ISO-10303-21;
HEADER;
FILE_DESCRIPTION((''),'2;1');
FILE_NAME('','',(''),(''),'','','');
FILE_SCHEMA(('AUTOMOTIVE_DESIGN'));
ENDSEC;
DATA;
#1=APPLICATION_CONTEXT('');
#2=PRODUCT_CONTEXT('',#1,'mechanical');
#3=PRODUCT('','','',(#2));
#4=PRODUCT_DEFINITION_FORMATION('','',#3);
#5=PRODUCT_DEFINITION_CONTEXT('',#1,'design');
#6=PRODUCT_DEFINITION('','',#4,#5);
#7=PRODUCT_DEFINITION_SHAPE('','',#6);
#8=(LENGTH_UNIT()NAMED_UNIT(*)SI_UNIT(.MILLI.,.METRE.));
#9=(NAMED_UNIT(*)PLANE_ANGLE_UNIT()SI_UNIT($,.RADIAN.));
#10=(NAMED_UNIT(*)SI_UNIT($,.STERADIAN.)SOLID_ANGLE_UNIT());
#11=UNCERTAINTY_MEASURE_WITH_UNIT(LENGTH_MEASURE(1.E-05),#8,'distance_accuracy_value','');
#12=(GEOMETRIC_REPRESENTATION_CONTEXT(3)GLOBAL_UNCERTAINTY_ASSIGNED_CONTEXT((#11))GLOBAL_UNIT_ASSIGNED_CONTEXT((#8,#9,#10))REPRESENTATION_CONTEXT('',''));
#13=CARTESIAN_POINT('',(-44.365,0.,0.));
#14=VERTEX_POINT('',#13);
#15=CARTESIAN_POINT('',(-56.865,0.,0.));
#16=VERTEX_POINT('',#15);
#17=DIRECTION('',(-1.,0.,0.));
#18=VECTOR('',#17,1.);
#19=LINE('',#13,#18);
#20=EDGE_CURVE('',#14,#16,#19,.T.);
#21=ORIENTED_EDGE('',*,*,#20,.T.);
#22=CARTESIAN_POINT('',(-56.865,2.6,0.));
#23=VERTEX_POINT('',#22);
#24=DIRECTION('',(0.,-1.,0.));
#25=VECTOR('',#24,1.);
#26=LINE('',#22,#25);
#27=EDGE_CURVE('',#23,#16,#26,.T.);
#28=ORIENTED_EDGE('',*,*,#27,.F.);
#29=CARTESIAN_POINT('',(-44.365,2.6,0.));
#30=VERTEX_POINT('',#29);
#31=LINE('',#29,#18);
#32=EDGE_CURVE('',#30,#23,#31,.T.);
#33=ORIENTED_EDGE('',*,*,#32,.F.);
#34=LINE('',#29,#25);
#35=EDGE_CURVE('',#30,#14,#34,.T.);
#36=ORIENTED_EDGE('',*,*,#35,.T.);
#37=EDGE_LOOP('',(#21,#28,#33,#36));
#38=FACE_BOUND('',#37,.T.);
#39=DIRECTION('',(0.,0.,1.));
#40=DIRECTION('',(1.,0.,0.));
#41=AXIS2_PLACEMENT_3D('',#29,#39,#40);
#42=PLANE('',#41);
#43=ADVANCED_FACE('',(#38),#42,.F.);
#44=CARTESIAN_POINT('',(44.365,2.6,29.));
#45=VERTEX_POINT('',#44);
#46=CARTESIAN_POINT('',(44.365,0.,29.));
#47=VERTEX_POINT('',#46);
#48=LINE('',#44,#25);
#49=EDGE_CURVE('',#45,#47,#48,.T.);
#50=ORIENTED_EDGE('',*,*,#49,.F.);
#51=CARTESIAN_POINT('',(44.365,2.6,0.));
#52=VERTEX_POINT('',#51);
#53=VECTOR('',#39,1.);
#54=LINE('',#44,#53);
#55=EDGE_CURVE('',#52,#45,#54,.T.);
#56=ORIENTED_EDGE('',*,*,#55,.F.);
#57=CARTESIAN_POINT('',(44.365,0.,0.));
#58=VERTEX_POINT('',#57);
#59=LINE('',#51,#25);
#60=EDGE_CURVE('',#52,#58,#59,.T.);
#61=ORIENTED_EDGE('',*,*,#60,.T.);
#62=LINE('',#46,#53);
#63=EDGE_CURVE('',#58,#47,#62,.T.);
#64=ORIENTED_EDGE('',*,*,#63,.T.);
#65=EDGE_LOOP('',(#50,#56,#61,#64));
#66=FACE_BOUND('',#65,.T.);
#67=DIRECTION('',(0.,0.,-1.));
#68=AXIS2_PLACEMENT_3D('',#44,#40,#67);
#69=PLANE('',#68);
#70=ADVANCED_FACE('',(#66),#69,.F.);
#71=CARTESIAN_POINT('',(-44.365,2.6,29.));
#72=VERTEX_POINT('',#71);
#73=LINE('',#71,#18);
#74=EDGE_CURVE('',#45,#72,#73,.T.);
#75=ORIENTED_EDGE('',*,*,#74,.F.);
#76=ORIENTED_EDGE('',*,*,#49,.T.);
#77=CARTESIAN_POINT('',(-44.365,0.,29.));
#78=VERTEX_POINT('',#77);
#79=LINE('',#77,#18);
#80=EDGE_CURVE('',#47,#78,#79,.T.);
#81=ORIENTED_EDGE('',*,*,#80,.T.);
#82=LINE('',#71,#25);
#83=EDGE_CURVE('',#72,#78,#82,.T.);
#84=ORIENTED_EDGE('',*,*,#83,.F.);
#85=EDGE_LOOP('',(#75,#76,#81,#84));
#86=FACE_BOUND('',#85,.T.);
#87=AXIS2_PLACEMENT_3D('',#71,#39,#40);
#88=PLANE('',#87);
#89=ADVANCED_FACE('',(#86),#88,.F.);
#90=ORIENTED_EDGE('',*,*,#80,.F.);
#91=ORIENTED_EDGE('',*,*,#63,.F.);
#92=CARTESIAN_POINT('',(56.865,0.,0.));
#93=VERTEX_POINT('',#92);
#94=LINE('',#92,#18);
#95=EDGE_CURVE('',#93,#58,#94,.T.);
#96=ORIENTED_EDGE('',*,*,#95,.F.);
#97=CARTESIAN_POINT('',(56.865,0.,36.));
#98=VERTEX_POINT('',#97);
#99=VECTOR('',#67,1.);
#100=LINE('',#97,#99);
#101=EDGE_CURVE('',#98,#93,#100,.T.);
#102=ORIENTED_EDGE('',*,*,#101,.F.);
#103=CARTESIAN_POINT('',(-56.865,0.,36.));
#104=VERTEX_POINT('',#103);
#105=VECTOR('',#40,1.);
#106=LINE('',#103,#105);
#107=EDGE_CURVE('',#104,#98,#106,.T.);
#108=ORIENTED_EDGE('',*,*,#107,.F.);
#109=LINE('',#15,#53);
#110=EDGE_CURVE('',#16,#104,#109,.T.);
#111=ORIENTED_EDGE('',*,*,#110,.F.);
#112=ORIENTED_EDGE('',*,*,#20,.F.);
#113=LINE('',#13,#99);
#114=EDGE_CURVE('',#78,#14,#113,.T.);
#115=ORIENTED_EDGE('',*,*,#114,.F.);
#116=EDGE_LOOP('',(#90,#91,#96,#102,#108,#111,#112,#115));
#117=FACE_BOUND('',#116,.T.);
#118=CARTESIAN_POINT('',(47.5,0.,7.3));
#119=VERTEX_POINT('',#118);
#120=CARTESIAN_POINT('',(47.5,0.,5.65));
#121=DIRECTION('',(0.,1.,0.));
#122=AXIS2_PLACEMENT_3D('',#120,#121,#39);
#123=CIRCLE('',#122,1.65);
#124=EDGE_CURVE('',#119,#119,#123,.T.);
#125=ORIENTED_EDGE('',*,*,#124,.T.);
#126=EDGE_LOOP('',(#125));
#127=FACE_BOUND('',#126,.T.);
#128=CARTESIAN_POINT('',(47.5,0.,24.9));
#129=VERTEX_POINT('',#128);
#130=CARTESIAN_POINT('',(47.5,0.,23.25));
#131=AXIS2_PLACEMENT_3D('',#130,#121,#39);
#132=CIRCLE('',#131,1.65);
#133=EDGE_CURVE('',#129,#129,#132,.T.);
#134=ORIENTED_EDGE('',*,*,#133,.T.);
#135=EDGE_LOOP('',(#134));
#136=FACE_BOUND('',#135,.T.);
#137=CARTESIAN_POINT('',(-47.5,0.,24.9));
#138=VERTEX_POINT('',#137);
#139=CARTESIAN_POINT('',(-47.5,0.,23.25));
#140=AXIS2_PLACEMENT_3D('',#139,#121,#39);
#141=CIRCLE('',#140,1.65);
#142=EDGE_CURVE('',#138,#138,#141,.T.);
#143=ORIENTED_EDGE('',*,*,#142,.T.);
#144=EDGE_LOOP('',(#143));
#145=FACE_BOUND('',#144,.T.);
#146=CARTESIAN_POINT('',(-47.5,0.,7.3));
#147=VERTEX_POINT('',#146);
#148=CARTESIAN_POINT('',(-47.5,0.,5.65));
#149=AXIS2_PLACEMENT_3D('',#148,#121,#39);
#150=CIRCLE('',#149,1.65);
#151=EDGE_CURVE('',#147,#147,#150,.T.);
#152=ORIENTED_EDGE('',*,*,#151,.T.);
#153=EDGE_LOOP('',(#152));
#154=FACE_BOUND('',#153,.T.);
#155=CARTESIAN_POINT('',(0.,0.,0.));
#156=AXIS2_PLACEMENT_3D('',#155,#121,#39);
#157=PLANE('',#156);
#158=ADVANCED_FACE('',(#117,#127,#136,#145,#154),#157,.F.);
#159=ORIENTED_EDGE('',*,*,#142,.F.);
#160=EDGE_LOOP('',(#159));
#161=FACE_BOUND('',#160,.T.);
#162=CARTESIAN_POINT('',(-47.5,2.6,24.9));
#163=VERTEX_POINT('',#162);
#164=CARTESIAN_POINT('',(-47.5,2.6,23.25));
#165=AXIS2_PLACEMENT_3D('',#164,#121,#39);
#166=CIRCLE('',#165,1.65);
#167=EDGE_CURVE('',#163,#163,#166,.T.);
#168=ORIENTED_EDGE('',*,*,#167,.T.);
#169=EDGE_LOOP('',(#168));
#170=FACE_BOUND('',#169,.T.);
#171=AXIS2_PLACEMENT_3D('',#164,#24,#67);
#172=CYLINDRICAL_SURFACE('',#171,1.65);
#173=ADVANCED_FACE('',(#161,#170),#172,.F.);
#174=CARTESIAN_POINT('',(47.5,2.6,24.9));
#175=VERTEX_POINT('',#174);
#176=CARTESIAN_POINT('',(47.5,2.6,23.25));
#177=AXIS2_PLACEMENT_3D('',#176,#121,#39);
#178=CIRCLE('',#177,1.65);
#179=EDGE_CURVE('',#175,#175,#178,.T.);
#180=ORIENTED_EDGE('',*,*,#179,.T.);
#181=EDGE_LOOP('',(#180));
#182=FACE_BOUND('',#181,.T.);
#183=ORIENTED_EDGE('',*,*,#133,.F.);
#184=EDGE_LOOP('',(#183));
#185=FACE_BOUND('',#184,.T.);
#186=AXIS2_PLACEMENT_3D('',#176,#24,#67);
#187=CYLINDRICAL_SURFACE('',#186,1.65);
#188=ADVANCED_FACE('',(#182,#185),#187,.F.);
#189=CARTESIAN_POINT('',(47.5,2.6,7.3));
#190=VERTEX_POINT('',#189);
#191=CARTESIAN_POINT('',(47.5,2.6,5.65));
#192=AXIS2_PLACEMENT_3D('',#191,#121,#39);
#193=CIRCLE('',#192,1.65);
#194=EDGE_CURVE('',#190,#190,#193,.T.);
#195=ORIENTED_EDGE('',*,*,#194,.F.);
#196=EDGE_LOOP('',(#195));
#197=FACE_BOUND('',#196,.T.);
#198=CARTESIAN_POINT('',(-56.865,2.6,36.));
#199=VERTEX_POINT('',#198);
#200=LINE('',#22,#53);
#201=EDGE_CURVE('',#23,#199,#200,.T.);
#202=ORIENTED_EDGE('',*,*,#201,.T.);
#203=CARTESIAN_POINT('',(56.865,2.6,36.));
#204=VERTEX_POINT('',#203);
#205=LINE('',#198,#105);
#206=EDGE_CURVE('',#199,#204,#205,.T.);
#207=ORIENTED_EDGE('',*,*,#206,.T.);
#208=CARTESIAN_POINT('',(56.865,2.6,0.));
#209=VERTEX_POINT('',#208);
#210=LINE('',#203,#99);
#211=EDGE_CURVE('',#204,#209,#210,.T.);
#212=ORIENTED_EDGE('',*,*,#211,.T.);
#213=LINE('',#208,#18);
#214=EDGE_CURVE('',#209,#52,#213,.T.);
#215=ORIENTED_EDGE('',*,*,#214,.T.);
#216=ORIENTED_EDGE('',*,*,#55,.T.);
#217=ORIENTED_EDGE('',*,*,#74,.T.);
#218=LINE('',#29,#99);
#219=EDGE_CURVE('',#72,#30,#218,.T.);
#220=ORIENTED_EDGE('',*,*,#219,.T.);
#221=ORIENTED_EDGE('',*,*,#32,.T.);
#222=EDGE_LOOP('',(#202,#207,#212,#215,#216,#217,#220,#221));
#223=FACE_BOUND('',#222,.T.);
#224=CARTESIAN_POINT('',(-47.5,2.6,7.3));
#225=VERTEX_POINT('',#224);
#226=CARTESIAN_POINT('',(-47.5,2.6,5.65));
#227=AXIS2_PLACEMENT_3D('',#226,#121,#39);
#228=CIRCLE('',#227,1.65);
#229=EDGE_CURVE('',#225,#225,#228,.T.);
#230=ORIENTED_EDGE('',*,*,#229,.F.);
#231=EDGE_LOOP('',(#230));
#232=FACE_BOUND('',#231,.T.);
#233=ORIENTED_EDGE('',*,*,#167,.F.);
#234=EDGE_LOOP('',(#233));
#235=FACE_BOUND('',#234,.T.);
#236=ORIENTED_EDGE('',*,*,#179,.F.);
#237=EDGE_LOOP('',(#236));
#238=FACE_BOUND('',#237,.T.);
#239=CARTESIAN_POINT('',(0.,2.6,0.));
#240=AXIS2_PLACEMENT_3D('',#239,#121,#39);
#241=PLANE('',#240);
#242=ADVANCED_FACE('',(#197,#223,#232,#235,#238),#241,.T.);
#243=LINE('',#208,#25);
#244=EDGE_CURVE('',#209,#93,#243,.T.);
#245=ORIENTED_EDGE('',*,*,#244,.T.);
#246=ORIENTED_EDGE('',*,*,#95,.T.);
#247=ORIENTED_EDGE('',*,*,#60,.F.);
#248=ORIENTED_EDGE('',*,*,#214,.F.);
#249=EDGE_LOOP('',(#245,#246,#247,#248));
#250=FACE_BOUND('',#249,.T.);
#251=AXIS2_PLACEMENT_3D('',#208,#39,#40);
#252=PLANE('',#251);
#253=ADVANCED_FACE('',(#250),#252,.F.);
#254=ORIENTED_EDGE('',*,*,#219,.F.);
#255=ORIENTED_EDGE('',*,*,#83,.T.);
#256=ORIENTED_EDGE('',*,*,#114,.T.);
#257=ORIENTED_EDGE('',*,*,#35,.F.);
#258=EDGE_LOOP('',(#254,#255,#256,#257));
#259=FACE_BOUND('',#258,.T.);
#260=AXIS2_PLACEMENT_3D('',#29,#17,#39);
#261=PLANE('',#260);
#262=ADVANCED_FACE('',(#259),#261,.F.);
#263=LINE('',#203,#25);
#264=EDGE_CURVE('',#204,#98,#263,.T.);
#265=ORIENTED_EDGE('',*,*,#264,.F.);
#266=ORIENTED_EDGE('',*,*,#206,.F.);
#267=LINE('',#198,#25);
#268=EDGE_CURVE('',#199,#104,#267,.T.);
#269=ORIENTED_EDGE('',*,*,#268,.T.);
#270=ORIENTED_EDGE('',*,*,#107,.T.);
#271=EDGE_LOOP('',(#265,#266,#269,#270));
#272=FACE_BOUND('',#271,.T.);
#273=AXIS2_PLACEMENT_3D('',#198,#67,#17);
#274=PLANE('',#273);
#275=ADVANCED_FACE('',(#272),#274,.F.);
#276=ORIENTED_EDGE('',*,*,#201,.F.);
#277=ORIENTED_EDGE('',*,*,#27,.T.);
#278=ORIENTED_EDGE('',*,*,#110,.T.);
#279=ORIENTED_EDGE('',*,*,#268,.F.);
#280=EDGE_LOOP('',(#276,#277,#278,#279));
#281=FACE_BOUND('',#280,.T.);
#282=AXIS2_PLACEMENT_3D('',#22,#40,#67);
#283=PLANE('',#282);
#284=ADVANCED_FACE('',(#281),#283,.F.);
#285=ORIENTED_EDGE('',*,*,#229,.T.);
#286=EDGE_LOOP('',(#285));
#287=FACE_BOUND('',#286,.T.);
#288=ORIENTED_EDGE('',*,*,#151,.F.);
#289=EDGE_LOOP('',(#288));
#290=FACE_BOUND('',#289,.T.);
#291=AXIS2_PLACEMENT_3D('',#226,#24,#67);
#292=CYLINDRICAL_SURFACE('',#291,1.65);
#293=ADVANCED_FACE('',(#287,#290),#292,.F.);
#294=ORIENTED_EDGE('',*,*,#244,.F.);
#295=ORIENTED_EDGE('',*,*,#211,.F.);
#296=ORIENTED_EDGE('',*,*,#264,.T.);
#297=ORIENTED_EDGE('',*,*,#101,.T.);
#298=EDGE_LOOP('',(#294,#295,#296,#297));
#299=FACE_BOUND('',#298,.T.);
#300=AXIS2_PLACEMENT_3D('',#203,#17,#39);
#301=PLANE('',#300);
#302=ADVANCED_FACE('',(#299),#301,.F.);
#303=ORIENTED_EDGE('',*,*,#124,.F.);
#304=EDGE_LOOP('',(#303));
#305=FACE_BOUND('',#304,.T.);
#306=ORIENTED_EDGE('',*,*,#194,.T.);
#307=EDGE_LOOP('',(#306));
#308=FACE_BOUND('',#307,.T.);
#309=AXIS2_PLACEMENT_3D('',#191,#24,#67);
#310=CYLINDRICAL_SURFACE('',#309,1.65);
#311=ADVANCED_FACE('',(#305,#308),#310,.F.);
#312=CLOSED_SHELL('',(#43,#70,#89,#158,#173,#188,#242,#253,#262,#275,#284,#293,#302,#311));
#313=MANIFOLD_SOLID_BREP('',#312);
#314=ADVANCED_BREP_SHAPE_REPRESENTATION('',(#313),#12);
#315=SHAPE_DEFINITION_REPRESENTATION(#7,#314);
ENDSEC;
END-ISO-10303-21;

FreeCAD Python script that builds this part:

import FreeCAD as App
import Part
import Sketcher
from FreeCAD import Vector

doc = App.newDocument("Part")
body = doc.addObject("PartDesign::Body", "Body")

# Sketch on XZ plane
sketch1 = doc.addObject("Sketcher::SketchObject", "Sketch")
body.addObject(sketch1)
sketch1.AttachmentSupport = (doc.XZ_Plane, [""])
sketch1.MapMode = "FlatFace"
sketch1.addGeometry([
    Part.LineSegment(Vector(-44.4, 29, 0), Vector(-44.4, 0, 0)),  # 0
    Part.LineSegment(Vector(-44.4, 0, 0), Vector(-56.9, 0, 0)),  # 1
    Part.LineSegment(Vector(-56.9, 0, 0), Vector(-56.9, 36, 0)),  # 2
    Part.LineSegment(Vector(-56.9, 36, 0), Vector(56.9, 36, 0)),  # 3
    Part.LineSegment(Vector(56.9, 36, 0), Vector(56.9, 0, 0)),  # 4
    Part.LineSegment(Vector(56.9, 0, 0), Vector(44.4, 0, 0)),  # 5
    Part.LineSegment(Vector(44.4, 0, 0), Vector(44.4, 29, 0)),  # 6
    Part.LineSegment(Vector(44.4, 29, 0), Vector(-44.4, 29, 0)),  # 7
    Part.Circle(Vector(47.5, 23.2, 0), Vector(0, 0, 1), 1.6),  # 8
    Part.Circle(Vector(-47.5, 23.2, 0), Vector(0, 0, 1), 1.6),  # 9
    Part.Circle(Vector(47.5, 5.7, 0), Vector(0, 0, 1), 1.6),  # 10
    Part.Circle(Vector(-47.5, 5.7, 0), Vector(0, 0, 1), 1.6),  # 11
], False)
sketch1.addConstraint([
    Sketcher.Constraint("Coincident", 0, 2, 1, 1),
    Sketcher.Constraint("Coincident", 1, 2, 2, 1),
    Sketcher.Constraint("Coincident", 2, 2, 3, 1),
    Sketcher.Constraint("Coincident", 3, 2, 4, 1),
    Sketcher.Constraint("Coincident", 4, 2, 5, 1),
    Sketcher.Constraint("Coincident", 5, 2, 6, 1),
    Sketcher.Constraint("Coincident", 6, 2, 7, 1),
    Sketcher.Constraint("Coincident", 7, 2, 0, 1),
    Sketcher.Constraint("Vertical", 0),
    Sketcher.Constraint("Horizontal", 1),
    Sketcher.Constraint("Vertical", 2),
    Sketcher.Constraint("Horizontal", 3),
    Sketcher.Constraint("Vertical", 4),
    Sketcher.Constraint("Horizontal", 5),
    Sketcher.Constraint("Vertical", 6),
    Sketcher.Constraint("Horizontal", 7),
    Sketcher.Constraint("Equal", 8, 9),
    Sketcher.Constraint("Equal", 9, 10),
    Sketcher.Constraint("Equal", 10, 11),
    Sketcher.Constraint("Symmetric", 1, 2, 4, 2, -1, 1),
    Sketcher.Constraint("Symmetric", 8, 3, 9, 3, -2),
    Sketcher.Constraint("Symmetric", 10, 3, 11, 3, -2),
    Sketcher.Constraint("Symmetric", 0, 2, 5, 2, -2),
    Sketcher.Constraint("Vertical", 8, 3, 10, 3),
    Sketcher.Constraint("Diameter", 8, 3.3),
    Sketcher.Constraint("DistanceY", 0, 2, 0, 1, 29.0),
    Sketcher.Constraint("DistanceY", 2, 1, 2, 2, 36.0),
    Sketcher.Constraint("DistanceX", 1, 2, 1, 1, 12.5),
    Sketcher.Constraint("DistanceX", 9, 3, 8, 3, 95.0),
    Sketcher.Constraint("DistanceX", 3, 1, 3, 2, 113.73),
    Sketcher.Constraint("DistanceY", 10, 3, 8, 3, 17.6),
    Sketcher.Constraint("DistanceY", -1, 1, 8, 3, 23.25),
])
pad1 = doc.addObject("PartDesign::Pad", "Pad")
body.addObject(pad1)
pad1.Profile = sketch1
pad1.Length = 2.6
pad1.Reversed = True

doc.recompute()
